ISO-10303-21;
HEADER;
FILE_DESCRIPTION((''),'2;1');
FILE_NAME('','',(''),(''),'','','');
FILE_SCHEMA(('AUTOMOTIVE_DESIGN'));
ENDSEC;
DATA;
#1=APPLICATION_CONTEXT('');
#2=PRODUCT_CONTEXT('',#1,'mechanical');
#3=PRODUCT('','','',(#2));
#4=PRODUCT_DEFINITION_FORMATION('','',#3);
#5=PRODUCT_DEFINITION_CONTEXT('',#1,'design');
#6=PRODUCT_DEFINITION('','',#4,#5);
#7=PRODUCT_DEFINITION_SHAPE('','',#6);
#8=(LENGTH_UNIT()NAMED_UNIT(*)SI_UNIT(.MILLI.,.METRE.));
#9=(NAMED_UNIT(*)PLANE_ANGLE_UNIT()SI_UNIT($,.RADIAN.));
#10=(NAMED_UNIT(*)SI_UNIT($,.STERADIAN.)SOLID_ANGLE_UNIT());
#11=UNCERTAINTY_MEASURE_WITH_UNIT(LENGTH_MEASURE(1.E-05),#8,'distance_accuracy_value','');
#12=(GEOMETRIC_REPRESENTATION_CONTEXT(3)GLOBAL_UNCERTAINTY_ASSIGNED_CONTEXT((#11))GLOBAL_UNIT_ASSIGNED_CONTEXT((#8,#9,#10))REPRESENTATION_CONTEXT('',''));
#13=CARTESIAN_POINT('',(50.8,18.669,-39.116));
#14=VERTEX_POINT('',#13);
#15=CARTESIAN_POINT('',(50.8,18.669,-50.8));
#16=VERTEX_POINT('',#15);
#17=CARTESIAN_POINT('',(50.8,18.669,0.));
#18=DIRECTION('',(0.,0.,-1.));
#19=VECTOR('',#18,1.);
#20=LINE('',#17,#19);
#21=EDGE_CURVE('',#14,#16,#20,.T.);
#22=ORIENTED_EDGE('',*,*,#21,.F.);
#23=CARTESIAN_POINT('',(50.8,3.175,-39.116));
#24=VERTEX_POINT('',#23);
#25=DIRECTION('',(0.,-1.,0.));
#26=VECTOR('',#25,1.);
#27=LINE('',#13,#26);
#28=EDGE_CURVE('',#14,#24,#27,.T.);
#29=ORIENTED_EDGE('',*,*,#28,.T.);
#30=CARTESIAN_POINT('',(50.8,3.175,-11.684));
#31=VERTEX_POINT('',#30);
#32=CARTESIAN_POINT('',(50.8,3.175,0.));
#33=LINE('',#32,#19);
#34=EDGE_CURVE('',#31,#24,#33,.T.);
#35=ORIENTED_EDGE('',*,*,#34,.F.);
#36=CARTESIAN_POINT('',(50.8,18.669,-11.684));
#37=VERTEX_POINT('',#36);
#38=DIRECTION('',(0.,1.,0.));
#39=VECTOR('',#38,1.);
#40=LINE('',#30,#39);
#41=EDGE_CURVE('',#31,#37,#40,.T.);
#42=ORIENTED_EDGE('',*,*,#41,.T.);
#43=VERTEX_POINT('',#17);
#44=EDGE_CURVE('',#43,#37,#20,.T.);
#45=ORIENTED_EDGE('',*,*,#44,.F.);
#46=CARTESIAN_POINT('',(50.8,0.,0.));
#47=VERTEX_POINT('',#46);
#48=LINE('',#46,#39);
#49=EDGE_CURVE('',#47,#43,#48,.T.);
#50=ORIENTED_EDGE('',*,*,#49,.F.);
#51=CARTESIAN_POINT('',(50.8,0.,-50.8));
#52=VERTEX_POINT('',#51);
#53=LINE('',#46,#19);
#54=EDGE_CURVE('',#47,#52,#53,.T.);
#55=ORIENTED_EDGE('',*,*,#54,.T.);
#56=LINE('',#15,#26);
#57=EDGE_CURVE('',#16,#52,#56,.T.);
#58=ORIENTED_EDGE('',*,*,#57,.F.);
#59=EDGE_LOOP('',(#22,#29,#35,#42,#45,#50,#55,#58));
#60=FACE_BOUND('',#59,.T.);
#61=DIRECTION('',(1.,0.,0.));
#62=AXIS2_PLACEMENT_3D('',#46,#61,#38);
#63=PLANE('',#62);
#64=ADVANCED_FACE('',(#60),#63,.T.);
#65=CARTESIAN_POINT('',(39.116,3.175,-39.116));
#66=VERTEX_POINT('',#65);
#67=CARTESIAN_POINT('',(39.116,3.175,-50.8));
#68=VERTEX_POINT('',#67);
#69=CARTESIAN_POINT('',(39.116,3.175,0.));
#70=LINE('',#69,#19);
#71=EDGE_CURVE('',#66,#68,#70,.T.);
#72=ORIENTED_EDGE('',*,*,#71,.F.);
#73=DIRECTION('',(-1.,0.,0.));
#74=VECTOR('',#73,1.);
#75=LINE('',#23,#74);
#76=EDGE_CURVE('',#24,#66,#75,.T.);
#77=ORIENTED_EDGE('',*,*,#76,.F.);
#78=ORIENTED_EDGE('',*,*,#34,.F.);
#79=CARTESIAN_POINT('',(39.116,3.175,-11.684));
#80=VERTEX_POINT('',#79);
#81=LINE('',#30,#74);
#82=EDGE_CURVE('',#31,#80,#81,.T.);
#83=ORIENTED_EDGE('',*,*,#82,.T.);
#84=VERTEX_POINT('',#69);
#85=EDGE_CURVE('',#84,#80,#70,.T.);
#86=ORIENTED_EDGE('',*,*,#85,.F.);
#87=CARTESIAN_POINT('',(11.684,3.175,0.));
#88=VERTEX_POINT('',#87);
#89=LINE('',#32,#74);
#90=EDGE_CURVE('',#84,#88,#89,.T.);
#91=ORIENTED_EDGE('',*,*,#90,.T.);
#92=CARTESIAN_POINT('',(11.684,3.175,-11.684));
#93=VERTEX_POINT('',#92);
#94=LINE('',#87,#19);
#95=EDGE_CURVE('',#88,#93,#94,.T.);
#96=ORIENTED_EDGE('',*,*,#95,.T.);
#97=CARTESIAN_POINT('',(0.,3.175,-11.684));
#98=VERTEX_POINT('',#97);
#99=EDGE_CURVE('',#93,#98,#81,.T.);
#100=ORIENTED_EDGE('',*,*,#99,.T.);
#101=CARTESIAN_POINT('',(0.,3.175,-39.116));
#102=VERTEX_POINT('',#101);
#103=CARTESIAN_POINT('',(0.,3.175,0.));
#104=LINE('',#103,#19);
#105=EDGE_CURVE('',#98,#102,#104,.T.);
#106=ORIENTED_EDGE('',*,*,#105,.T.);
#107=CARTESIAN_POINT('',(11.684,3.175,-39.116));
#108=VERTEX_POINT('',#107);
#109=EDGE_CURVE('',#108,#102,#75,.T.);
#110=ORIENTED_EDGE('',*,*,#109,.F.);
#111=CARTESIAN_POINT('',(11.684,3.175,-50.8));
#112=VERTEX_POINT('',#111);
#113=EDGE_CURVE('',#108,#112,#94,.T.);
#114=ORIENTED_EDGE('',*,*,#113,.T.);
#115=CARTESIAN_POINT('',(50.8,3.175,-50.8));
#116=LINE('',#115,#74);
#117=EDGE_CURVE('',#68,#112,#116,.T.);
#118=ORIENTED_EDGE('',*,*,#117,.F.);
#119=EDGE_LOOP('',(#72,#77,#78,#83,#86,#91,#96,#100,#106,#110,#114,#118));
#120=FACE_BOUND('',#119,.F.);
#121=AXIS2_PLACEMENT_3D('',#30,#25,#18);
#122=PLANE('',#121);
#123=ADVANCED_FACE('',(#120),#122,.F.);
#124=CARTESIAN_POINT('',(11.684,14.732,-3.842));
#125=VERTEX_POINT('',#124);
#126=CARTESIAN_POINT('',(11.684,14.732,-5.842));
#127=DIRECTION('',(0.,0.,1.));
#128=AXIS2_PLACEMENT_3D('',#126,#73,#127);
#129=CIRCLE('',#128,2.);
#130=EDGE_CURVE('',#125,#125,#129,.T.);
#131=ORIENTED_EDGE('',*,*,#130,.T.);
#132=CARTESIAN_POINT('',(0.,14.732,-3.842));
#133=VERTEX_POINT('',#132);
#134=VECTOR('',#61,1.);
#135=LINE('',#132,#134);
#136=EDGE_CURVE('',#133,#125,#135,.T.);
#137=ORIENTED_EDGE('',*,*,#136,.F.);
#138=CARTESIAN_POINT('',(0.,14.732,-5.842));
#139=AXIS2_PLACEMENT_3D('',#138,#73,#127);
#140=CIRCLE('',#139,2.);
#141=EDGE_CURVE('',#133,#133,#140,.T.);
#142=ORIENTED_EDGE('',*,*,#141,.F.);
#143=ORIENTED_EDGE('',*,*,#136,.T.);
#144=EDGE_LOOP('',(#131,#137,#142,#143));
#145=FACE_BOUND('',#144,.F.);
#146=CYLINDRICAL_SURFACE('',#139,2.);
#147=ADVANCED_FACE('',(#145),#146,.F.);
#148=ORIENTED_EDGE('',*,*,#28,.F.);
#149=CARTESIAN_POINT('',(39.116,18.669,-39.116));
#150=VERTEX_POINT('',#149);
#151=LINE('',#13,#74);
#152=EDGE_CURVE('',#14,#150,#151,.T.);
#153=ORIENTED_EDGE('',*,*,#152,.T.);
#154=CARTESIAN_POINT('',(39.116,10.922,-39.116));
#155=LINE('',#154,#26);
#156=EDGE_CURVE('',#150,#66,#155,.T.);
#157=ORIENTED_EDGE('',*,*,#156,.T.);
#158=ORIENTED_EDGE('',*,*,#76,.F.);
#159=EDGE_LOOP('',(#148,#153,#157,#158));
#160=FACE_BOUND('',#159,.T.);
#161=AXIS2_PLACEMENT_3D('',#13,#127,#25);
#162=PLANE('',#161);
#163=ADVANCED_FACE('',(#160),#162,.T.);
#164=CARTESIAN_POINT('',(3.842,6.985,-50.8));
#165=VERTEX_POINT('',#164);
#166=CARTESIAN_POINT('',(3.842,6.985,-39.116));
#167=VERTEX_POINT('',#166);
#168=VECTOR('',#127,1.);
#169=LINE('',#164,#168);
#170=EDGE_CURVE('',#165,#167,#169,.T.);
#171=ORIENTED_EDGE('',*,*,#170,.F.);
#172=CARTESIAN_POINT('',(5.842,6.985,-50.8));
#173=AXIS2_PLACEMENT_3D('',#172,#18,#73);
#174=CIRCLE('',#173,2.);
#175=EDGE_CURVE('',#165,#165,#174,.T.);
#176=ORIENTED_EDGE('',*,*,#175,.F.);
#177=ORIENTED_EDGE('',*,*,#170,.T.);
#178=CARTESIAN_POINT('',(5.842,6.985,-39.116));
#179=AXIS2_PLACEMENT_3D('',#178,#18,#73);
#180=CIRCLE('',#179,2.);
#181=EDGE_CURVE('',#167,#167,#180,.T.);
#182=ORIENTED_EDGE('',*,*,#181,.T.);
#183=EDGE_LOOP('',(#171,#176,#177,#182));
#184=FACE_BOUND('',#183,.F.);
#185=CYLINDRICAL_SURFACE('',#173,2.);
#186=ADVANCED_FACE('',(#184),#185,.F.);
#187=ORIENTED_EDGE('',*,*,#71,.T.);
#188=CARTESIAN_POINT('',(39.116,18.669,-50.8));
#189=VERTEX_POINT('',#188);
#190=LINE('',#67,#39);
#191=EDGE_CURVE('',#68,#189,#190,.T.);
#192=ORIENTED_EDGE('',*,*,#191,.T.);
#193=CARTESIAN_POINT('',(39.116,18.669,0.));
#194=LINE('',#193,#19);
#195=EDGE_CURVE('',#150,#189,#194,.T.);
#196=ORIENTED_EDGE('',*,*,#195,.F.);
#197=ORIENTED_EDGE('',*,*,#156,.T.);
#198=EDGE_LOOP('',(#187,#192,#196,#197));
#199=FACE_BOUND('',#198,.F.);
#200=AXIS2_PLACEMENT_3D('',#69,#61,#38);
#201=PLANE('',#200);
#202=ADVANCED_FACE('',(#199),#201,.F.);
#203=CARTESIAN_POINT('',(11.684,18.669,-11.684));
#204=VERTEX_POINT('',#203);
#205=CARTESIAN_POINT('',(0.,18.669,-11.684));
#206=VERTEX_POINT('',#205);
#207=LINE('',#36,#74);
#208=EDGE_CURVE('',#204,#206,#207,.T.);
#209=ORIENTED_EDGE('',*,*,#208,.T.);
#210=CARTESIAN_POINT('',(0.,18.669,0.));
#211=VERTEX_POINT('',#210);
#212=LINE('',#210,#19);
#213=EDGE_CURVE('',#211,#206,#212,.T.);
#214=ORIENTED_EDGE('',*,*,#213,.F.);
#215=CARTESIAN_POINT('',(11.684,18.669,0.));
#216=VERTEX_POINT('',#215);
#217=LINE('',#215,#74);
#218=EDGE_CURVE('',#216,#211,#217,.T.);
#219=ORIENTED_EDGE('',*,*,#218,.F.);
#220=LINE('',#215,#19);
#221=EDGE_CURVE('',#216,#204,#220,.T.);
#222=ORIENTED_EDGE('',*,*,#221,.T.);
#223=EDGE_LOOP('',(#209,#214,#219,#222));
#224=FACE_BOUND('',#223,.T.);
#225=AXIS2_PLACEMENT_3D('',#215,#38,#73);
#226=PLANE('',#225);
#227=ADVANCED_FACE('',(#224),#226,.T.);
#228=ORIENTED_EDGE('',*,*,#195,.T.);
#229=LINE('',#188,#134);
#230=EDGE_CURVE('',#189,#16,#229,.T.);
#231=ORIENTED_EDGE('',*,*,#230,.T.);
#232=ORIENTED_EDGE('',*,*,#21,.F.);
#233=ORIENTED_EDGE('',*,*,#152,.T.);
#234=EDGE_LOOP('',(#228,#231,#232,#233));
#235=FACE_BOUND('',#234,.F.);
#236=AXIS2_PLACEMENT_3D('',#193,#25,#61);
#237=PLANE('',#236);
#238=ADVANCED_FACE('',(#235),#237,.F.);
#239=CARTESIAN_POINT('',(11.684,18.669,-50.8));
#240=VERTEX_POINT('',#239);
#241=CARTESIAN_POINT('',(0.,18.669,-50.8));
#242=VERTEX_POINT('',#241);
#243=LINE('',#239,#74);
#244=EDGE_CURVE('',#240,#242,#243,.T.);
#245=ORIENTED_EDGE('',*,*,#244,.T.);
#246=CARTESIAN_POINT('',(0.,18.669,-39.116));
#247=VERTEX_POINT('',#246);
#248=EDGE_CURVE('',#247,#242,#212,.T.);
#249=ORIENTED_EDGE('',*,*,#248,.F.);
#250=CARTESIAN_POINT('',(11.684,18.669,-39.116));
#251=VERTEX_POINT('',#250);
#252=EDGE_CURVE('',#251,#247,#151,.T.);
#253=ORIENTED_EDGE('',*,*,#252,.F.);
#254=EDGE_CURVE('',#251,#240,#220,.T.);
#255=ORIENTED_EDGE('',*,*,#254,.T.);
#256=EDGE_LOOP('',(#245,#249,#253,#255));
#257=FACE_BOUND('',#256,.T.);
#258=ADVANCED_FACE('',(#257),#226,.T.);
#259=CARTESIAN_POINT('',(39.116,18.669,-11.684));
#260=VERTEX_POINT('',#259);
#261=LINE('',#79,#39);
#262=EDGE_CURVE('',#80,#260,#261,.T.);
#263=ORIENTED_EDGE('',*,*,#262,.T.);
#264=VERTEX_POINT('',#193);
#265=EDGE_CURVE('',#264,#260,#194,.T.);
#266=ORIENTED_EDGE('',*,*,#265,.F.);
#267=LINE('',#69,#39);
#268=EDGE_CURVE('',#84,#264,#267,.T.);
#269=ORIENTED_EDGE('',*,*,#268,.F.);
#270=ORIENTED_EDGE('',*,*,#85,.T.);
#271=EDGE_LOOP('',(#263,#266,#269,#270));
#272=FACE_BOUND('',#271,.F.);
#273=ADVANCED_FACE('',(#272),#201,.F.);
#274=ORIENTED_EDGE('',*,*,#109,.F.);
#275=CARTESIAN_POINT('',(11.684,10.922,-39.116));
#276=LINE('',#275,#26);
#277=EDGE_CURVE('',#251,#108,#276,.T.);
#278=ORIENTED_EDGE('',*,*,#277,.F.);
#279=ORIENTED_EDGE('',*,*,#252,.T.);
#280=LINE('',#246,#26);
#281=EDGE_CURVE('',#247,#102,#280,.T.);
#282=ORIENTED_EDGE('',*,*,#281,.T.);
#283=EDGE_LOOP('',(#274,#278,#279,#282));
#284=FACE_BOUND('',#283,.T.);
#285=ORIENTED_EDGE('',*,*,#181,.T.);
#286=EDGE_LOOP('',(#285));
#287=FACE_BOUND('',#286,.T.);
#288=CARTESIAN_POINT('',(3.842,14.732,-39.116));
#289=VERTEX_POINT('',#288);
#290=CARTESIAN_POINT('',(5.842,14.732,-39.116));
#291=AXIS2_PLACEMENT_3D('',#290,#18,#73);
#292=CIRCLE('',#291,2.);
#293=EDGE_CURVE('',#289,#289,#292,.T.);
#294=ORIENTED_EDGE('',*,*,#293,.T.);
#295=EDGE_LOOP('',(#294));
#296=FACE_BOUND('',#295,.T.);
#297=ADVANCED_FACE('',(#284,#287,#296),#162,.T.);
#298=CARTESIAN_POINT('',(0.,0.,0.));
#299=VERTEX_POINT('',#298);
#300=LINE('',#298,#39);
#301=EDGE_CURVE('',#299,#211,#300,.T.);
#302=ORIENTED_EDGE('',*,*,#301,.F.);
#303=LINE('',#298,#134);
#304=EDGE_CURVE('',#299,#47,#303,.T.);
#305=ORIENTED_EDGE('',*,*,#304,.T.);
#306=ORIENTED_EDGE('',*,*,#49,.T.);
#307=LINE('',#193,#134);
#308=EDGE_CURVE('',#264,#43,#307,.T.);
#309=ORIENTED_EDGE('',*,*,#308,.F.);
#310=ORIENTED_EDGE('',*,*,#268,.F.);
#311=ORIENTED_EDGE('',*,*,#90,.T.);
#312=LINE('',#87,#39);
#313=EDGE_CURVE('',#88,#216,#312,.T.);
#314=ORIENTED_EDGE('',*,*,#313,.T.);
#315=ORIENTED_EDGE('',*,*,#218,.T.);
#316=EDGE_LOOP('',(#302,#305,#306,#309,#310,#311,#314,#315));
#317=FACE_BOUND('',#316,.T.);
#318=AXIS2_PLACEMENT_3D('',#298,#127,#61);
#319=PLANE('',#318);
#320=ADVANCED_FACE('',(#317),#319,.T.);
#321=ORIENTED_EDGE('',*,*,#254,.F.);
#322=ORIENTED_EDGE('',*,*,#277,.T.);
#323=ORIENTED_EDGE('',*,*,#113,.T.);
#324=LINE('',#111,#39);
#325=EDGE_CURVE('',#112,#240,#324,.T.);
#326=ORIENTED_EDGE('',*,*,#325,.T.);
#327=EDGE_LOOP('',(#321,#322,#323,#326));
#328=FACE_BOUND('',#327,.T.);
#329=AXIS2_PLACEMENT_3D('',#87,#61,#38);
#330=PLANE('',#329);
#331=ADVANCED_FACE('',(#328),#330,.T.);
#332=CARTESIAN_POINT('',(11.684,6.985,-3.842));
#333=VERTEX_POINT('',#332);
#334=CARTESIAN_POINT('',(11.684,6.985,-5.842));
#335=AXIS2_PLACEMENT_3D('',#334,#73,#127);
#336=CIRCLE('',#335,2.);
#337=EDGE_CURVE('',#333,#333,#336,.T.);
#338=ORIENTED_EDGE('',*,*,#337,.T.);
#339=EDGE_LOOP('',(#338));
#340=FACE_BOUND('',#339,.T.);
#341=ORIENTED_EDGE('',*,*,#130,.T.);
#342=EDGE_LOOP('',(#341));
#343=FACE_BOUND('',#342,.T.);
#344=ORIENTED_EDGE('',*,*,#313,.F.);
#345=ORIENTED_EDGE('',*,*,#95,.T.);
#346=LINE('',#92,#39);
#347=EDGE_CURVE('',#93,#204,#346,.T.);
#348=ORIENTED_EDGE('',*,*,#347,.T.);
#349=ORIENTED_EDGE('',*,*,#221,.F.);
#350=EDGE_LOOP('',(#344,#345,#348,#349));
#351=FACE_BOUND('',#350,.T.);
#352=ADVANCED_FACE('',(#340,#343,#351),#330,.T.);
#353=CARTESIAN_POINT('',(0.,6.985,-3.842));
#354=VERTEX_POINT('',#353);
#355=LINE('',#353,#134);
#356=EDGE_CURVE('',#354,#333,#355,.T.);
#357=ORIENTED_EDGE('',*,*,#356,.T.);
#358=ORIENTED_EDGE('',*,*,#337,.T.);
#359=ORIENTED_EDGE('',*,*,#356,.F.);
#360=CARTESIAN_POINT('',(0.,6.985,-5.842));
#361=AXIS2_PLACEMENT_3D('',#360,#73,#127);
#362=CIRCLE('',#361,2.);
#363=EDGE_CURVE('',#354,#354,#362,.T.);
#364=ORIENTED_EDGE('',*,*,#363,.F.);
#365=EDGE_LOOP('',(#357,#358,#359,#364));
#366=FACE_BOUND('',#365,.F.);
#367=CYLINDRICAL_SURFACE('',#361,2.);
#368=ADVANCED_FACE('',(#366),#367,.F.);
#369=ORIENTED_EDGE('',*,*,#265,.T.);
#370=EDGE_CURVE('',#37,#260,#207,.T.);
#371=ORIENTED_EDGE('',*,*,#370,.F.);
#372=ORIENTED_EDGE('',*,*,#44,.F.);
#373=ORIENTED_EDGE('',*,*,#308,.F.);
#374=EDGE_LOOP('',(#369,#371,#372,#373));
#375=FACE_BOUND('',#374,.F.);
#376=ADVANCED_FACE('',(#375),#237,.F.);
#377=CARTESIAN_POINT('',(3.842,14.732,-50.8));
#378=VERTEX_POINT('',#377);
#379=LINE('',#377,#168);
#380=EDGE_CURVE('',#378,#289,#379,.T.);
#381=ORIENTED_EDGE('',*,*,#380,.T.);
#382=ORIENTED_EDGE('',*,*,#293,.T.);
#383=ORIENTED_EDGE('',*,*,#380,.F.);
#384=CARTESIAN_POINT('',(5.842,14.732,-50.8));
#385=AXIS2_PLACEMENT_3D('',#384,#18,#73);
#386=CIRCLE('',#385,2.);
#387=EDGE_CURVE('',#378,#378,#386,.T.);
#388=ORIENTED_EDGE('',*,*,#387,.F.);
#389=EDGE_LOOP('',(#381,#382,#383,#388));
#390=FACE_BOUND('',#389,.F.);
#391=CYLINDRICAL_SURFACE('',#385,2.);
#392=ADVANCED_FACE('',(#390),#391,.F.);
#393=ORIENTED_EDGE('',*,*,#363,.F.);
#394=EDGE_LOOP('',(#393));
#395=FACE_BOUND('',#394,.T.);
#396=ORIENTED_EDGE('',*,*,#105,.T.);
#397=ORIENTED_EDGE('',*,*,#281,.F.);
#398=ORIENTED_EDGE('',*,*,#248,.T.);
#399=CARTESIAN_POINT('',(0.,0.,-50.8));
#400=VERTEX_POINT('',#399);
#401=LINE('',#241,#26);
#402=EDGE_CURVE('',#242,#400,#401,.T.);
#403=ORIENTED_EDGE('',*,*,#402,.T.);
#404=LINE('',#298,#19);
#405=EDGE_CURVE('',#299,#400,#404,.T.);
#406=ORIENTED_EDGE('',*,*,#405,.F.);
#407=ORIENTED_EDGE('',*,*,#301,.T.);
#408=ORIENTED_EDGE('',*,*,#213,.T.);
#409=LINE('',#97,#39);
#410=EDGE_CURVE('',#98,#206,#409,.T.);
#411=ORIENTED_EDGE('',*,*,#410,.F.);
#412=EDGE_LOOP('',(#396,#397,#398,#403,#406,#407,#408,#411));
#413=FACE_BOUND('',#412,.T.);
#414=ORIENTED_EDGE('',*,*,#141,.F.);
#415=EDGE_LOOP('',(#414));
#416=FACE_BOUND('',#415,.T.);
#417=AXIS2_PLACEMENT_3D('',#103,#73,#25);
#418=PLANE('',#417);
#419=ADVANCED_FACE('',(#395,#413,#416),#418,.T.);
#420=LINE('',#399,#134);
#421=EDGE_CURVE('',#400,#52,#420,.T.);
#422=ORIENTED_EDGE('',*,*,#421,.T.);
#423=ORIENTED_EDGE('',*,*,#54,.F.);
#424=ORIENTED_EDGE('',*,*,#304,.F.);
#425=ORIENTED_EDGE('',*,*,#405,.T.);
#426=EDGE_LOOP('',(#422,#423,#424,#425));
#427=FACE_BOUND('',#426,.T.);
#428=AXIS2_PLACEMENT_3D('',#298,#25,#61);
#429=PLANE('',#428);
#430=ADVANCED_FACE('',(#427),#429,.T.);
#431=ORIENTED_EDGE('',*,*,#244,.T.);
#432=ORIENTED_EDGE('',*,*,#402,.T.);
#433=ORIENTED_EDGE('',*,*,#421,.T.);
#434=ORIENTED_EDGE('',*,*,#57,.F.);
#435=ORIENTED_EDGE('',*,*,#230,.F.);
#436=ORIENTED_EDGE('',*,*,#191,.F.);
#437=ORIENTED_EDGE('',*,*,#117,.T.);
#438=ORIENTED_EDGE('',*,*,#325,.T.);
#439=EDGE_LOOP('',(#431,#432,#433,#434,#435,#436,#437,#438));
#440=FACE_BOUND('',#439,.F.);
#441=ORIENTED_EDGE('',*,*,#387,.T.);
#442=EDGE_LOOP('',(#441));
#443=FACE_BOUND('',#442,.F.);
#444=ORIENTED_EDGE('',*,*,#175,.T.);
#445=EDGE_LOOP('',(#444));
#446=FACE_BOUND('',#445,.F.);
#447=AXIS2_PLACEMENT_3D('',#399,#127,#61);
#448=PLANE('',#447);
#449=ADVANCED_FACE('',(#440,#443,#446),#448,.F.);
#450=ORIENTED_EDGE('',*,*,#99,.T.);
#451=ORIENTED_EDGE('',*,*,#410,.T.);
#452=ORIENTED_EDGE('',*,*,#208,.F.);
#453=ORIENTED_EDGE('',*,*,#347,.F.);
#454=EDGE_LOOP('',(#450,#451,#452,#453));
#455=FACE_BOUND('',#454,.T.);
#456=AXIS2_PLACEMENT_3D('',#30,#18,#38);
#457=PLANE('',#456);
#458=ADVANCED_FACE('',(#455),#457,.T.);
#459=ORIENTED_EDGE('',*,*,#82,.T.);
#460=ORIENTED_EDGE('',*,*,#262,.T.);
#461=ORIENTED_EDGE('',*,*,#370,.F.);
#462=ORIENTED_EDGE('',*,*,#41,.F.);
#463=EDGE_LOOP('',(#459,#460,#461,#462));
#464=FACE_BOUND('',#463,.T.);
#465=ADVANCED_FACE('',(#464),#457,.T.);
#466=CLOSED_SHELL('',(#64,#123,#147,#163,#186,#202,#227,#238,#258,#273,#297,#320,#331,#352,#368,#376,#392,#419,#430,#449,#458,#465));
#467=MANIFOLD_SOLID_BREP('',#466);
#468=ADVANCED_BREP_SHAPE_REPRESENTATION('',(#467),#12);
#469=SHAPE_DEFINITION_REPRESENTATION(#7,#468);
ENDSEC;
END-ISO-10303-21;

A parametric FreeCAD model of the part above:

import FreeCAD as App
import Part
import Sketcher
Q = App.Units.Quantity

doc = App.newDocument("Part")
body = doc.addObject("PartDesign::Body", "Body")

sketch1 = body.newObject("Sketcher::SketchObject", "Sketch")
sketch1.AttachmentSupport = (doc.getObject("XY_Plane"), [""])
sketch1.MapMode = "FlatFace"
sketch1.addGeometry([
    Part.LineSegment(App.Vector(0, 0, 0), App.Vector(51, 0, 0)),
    Part.LineSegment(App.Vector(51, 0, 0), App.Vector(51, 19, 0)),
    Part.LineSegment(App.Vector(51, 19, 0), App.Vector(39, 19, 0)),
    Part.LineSegment(App.Vector(39, 19, 0), App.Vector(39, 3, 0)),
    Part.LineSegment(App.Vector(39, 3, 0), App.Vector(12, 3, 0)),
    Part.LineSegment(App.Vector(12, 3, 0), App.Vector(12, 19, 0)),
    Part.LineSegment(App.Vector(12, 19, 0), App.Vector(0, 19, 0)),
    Part.LineSegment(App.Vector(0, 19, 0), App.Vector(0, 0, 0)),
], False)
sketch1.addConstraint([
    Sketcher.Constraint("Coincident", 0, 2, 1, 1),
    Sketcher.Constraint("Coincident", 1, 2, 2, 1),
    Sketcher.Constraint("Coincident", 2, 2, 3, 1),
    Sketcher.Constraint("Coincident", 3, 2, 4, 1),
    Sketcher.Constraint("Coincident", 4, 2, 5, 1),
    Sketcher.Constraint("Coincident", 5, 2, 6, 1),
    Sketcher.Constraint("Coincident", 6, 2, 7, 1),
    Sketcher.Constraint("Coincident", 7, 2, 0, 1),
    Sketcher.Constraint("Horizontal", 0),
    Sketcher.Constraint("Vertical", 1),
    Sketcher.Constraint("Horizontal", 2),
    Sketcher.Constraint("Vertical", 3),
    Sketcher.Constraint("Horizontal", 4),
    Sketcher.Constraint("Vertical", 5),
    Sketcher.Constraint("Horizontal", 6),
    Sketcher.Constraint("Vertical", 7),
    Sketcher.Constraint("Coincident", 7, 2, -1, 1),
    Sketcher.Constraint("Horizontal", 2, 2, 5, 2),
    Sketcher.Constraint("Equal", 2, 6),
    Sketcher.Constraint("DistanceX", 0, 1, 0, 2, Q("2 in")),
    Sketcher.Constraint("DistanceX", 2, 2, 2, 1, Q("0.46 in")),
    Sketcher.Constraint("DistanceY", 3, 2, 3, 1, Q("0.61 in")),
    Sketcher.Constraint("DistanceY", -1, 1, 3, 2, Q("0.125 in")),
])
pad1 = body.newObject("PartDesign::Pad", "Pad")
pad1.Profile = sketch1
pad1.Length = Q("2 in")
pad1.Reversed = True

sketch2 = body.newObject("Sketcher::SketchObject", "Sketch001")
sketch2.AttachmentSupport = (doc.getObject("YZ_Plane"), [""])
sketch2.MapMode = "FlatFace"
sketch2.AttachmentOffset = App.Placement(App.Vector(0, 0, 2 * 25.4), App.Rotation())
sketch2.addGeometry([
    Part.LineSegment(App.Vector(19, -12, 0), App.Vector(3, -12, 0)),
    Part.LineSegment(App.Vector(3, -12, 0), App.Vector(3, -39, 0)),
    Part.LineSegment(App.Vector(3, -39, 0), App.Vector(19, -39, 0)),
    Part.LineSegment(App.Vector(19, -39, 0), App.Vector(19, -12, 0)),
], False)
sketch2.addConstraint([
    Sketcher.Constraint("Coincident", 0, 2, 1, 1),
    Sketcher.Constraint("Coincident", 1, 2, 2, 1),
    Sketcher.Constraint("Coincident", 2, 2, 3, 1),
    Sketcher.Constraint("Coincident", 3, 2, 0, 1),
    Sketcher.Constraint("Horizontal", 0),
    Sketcher.Constraint("Vertical", 1),
    Sketcher.Constraint("Horizontal", 2),
    Sketcher.Constraint("Vertical", 3),
    Sketcher.Constraint("DistanceX", 0, 2, 0, 1, Q("0.61 in")),
    Sketcher.Constraint("DistanceY", 0, 2, -1, 1, Q("0.46 in")),
    Sketcher.Constraint("DistanceY", 1, 2, 1, 1, Q("1.08 in")),
    Sketcher.Constraint("DistanceX", -1, 1, 0, 2, Q("0.125 in")),
])
pocket1 = body.newObject("PartDesign::Pocket", "Pocket")
pocket1.Profile = sketch2
pocket1.Length = Q("2 in")

sketch3 = body.newObject("Sketcher::SketchObject", "Sketch002")
sketch3.AttachmentSupport = (doc.getObject("YZ_Plane"), [""])
sketch3.MapMode = "FlatFace"
sketch3.addGeometry([
    Part.Circle(App.Vector(7, -5.8, 0), App.Vector(0, 0, 1), 2),
    Part.Circle(App.Vector(14.7, -5.8, 0), App.Vector(0, 0, 1), 2),
], False)
sketch3.addConstraint([
    Sketcher.Constraint("Equal", 0, 1),
    Sketcher.Constraint("Horizontal", 0, 3, 1, 3),
    Sketcher.Constraint("Diameter", 0, Q("4 mm")),
    Sketcher.Constraint("DistanceY", 0, 3, -1, 1, Q("0.23 in")),
    Sketcher.Constraint("DistanceX", -1, 1, 1, 3, Q("0.58 in")),
    Sketcher.Constraint("DistanceX", -1, 1, 0, 3, Q("0.275 in")),
])
pocket2 = body.newObject("PartDesign::Pocket", "Pocket001")
pocket2.Profile = sketch3
pocket2.Length = Q("0.46 in")
pocket2.Reversed = True

sketch4 = body.newObject("Sketcher::SketchObject", "Sketch003")
sketch4.AttachmentSupport = (doc.getObject("XY_Plane"), [""])
sketch4.MapMode = "FlatFace"
sketch4.AttachmentOffset = App.Placement(App.Vector(0, 0, -2 * 25.4), App.Rotation())
sketch4.addGeometry([
    Part.Circle(App.Vector(5.8, 7, 0), App.Vector(0, 0, 1), 2),
    Part.Circle(App.Vector(5.8, 14.7, 0), App.Vector(0, 0, 1), 2),
], False)
sketch4.addConstraint([
    Sketcher.Constraint("Equal", 0, 1),
    Sketcher.Constraint("Vertical", 0, 3, 1, 3),
    Sketcher.Constraint("Diameter", 0, Q("4 mm")),
    Sketcher.Constraint("DistanceX", -1, 1, 0, 3, Q("0.23 in")),
    Sketcher.Constraint("DistanceY", -1, 1, 1, 3, Q("0.58 in")),
    Sketcher.Constraint("DistanceY", -1, 1, 0, 3, Q("0.275 in")),
])
pocket3 = body.newObject("PartDesign::Pocket", "Pocket002")
pocket3.Profile = sketch4
pocket3.Length = Q("0.46 in")
pocket3.Reversed = True

doc.recompute()
